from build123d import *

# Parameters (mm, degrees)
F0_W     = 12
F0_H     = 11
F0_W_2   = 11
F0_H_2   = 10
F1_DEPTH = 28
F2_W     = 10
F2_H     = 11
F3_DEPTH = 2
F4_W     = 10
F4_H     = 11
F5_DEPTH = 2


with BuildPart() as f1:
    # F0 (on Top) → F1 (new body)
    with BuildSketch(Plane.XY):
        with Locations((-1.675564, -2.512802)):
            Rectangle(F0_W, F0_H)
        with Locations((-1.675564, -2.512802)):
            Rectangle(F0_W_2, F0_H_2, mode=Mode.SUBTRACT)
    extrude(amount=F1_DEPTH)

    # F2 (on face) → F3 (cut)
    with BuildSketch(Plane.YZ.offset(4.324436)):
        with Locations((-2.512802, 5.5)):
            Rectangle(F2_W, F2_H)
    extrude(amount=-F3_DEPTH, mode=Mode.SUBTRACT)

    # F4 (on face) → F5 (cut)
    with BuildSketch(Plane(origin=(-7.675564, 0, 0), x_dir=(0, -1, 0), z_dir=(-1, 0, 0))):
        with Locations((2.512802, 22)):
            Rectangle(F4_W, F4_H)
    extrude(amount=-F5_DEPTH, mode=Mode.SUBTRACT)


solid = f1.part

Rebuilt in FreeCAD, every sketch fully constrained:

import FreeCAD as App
import Part
import Sketcher

V = App.Vector

doc = App.newDocument("Part")
body = doc.addObject("PartDesign::Body", "Body")

sketch1 = body.newObject("Sketcher::SketchObject", "Sketch")
sketch1.AttachmentSupport = (doc.getObject("XY_Plane"), [""])
sketch1.MapMode = "FlatFace"
sketch1.addGeometry(Part.LineSegment(V(-8, 3, 0), V(-8, -8, 0)), False)
sketch1.addGeometry(Part.LineSegment(V(-8, -8, 0), V(4, -8, 0)), False)
sketch1.addGeometry(Part.LineSegment(V(4, -8, 0), V(4, 3, 0)), False)
sketch1.addGeometry(Part.LineSegment(V(4, 3, 0), V(-8, 3, 0)), False)
sketch1.addGeometry(Part.LineSegment(V(4, -8, 0), V(-7, -8, 0)), False)
sketch1.addGeometry(Part.LineSegment(V(-7, -8, 0), V(-7, 2, 0)), False)
sketch1.addGeometry(Part.LineSegment(V(-7, 2, 0), V(4, 2, 0)), False)
sketch1.addGeometry(Part.LineSegment(V(4, 2, 0), V(4, -8, 0)), False)
sketch1.addConstraint(Sketcher.Constraint("Coincident", 0, 2, 1, 1))
sketch1.addConstraint(Sketcher.Constraint("Coincident", 1, 2, 2, 1))
sketch1.addConstraint(Sketcher.Constraint("Coincident", 2, 2, 3, 1))
sketch1.addConstraint(Sketcher.Constraint("Coincident", 3, 2, 0, 1))
sketch1.addConstraint(Sketcher.Constraint("Coincident", 4, 2, 5, 1))
sketch1.addConstraint(Sketcher.Constraint("Coincident", 5, 2, 6, 1))
sketch1.addConstraint(Sketcher.Constraint("Coincident", 6, 2, 7, 1))
sketch1.addConstraint(Sketcher.Constraint("Coincident", 7, 2, 4, 1))
sketch1.addConstraint(Sketcher.Constraint("Vertical", 0))
sketch1.addConstraint(Sketcher.Constraint("Horizontal", 1))
sketch1.addConstraint(Sketcher.Constraint("Vertical", 2))
sketch1.addConstraint(Sketcher.Constraint("Horizontal", 3))
sketch1.addConstraint(Sketcher.Constraint("Horizontal", 4))
sketch1.addConstraint(Sketcher.Constraint("Vertical", 5))
sketch1.addConstraint(Sketcher.Constraint("Horizontal", 6))
sketch1.addConstraint(Sketcher.Constraint("Vertical", 7))
sketch1.addConstraint(Sketcher.Constraint("Equal", 6, 0))
sketch1.addConstraint(Sketcher.Constraint("DistanceX", 1, 1, 1, 2, 12.0))
sketch1.addConstraint(Sketcher.Constraint("DistanceX", 4, 2, 4, 1, 11.0))
sketch1.addConstraint(Sketcher.Constraint("DistanceY", 5, 1, 5, 2, 10.0))
sketch1.addConstraint(Sketcher.Constraint("DistanceX", 0, 2, 4, 2, 0.5))
sketch1.addConstraint(Sketcher.Constraint("DistanceY", 0, 2, 4, 2, 0.5))
sketch1.addConstraint(Sketcher.Constraint("DistanceY", 4, 2, -1, 1, 7.512802))
sketch1.addConstraint(Sketcher.Constraint("DistanceX", 0, 2, -1, 1, 7.675564))
pad1 = body.newObject("PartDesign::Pad", "Pad")
pad1.Profile = sketch1
pad1.Length = 28

sketch2 = body.newObject("Sketcher::SketchObject", "Sketch001")
sketch2.AttachmentSupport = (doc.getObject("YZ_Plane"), [""])
sketch2.MapMode = "FlatFace"
sketch2.AttachmentOffset = App.Placement(V(0, 0, 4.324436), App.Rotation())
sketch2.addGeometry(Part.LineSegment(V(-8, 11, 0), V(-8, 0, 0)), False)
sketch2.addGeometry(Part.LineSegment(V(-8, 0, 0), V(2, 0, 0)), False)
sketch2.addGeometry(Part.LineSegment(V(2, 0, 0), V(2, 11, 0)), False)
sketch2.addGeometry(Part.LineSegment(V(2, 11, 0), V(-8, 11, 0)), False)
sketch2.addConstraint(Sketcher.Constraint("Coincident", 0, 2, 1, 1))
sketch2.addConstraint(Sketcher.Constraint("Coincident", 1, 2, 2, 1))
sketch2.addConstraint(Sketcher.Constraint("Coincident", 2, 2, 3, 1))
sketch2.addConstraint(Sketcher.Constraint("Coincident", 3, 2, 0, 1))
sketch2.addConstraint(Sketcher.Constraint("Vertical", 0))
sketch2.addConstraint(Sketcher.Constraint("Horizontal", 1))
sketch2.addConstraint(Sketcher.Constraint("Vertical", 2))
sketch2.addConstraint(Sketcher.Constraint("Horizontal", 3))
sketch2.addConstraint(Sketcher.Constraint("PointOnObject", 0, 2, -1))
sketch2.addConstraint(Sketcher.Constraint("DistanceX", 1, 1, 1, 2, 10.0))
sketch2.addConstraint(Sketcher.Constraint("DistanceY", 0, 2, 0, 1, 11.0))
sketch2.addConstraint(Sketcher.Constraint("DistanceX", 0, 2, -1, 1, 7.512802))
pocket1 = body.newObject("PartDesign::Pocket", "Pocket")
pocket1.Profile = sketch2
pocket1.Length = 2

sketch3 = body.newObject("Sketcher::SketchObject", "Sketch002")
sketch3.AttachmentSupport = (doc.getObject("YZ_Plane"), [""])
sketch3.MapMode = "FlatFace"
sketch3.AttachmentOffset = App.Placement(V(0, 0, -7.675564), App.Rotation())
sketch3.addGeometry(Part.LineSegment(V(2, 28, 0), V(2, 16, 0)), False)
sketch3.addGeometry(Part.LineSegment(V(2, 16, 0), V(-8, 16, 0)), False)
sketch3.addGeometry(Part.LineSegment(V(-8, 16, 0), V(-8, 28, 0)), False)
sketch3.addGeometry(Part.LineSegment(V(-8, 28, 0), V(2, 28, 0)), False)
sketch3.addConstraint(Sketcher.Constraint("Coincident", 0, 2, 1, 1))
sketch3.addConstraint(Sketcher.Constraint("Coincident", 1, 2, 2, 1))
sketch3.addConstraint(Sketcher.Constraint("Coincident", 2, 2, 3, 1))
sketch3.addConstraint(Sketcher.Constraint("Coincident", 3, 2, 0, 1))
sketch3.addConstraint(Sketcher.Constraint("Vertical", 0))
sketch3.addConstraint(Sketcher.Constraint("Horizontal", 1))
sketch3.addConstraint(Sketcher.Constraint("Vertical", 2))
sketch3.addConstraint(Sketcher.Constraint("Horizontal", 3))
sketch3.addConstraint(Sketcher.Constraint("DistanceX", 1, 2, 1, 1, 10.0))
sketch3.addConstraint(Sketcher.Constraint("DistanceY", 0, 2, 0, 1, 11.0))
sketch3.addConstraint(Sketcher.Constraint("DistanceY", -1, 1, 0, 2, 16.5))
sketch3.addConstraint(Sketcher.Constraint("DistanceX", 1, 2, -1, 1, 7.512802))
pocket2 = body.newObject("PartDesign::Pocket", "Pocket001")
pocket2.Profile = sketch3
pocket2.Length = 2
pocket2.Reversed = True

doc.recompute()
